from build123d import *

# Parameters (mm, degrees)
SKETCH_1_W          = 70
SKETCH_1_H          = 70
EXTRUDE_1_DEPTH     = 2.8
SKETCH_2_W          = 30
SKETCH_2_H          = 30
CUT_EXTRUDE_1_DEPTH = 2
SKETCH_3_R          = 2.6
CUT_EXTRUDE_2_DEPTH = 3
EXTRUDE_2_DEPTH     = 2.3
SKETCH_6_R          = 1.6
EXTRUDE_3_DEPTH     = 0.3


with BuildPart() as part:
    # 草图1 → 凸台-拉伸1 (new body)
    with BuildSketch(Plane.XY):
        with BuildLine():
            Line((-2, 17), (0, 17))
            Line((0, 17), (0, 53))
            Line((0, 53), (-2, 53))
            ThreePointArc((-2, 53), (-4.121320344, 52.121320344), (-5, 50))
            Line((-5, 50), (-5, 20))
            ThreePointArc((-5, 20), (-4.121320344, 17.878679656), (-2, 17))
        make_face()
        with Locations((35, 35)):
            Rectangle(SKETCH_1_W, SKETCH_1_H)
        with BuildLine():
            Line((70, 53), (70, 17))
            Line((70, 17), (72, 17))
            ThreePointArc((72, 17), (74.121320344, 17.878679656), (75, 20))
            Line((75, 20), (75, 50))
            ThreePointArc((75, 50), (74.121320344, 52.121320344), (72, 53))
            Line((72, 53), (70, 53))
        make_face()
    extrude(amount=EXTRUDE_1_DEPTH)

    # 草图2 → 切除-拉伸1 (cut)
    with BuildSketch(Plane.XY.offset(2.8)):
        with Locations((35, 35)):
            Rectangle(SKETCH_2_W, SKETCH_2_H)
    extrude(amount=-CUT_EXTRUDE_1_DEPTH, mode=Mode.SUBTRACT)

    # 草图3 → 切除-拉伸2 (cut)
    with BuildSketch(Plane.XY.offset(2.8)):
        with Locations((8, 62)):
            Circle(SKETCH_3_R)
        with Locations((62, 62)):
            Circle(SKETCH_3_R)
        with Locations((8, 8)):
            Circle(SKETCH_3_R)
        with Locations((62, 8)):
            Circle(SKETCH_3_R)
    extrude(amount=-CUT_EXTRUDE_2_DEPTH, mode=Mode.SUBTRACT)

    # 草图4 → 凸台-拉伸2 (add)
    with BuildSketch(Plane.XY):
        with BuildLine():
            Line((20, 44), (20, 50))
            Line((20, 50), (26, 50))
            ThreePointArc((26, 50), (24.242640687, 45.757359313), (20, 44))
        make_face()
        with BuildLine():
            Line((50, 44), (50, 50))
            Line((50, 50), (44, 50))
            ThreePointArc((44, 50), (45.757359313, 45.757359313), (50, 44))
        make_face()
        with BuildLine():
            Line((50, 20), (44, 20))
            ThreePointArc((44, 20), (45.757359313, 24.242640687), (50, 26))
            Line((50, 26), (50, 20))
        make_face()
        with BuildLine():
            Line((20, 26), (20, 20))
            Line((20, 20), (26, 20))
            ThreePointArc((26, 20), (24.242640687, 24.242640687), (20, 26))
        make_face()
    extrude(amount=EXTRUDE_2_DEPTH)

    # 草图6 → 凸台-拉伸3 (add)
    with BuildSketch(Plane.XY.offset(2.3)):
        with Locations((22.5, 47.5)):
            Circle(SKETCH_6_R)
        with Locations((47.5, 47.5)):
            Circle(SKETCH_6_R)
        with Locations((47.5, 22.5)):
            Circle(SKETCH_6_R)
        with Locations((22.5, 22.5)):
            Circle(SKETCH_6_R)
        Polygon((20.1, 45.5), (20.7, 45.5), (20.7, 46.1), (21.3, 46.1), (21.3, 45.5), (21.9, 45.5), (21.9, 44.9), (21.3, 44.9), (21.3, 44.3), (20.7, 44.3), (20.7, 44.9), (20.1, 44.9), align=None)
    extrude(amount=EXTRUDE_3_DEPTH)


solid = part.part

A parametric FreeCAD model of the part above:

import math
import FreeCAD as App
import Part
import Sketcher
Q = App.Units.Quantity

doc = App.newDocument("Part")
body = doc.addObject("PartDesign::Body", "Body")

sketch1 = doc.addObject("Sketcher::SketchObject", "Sketch")
body.addObject(sketch1)
sketch1.AttachmentSupport = (doc.XY_Plane, [""])
sketch1.MapMode = "FlatFace"
sketch1.addGeometry(Part.LineSegment(App.Vector(-2, 17, 0), App.Vector(0, 17, 0)), False)
sketch1.addGeometry(Part.LineSegment(App.Vector(0, 17, 0), App.Vector(0, 0, 0)), False)
sketch1.addGeometry(Part.LineSegment(App.Vector(0, 0, 0), App.Vector(70, 0, 0)), False)
sketch1.addGeometry(Part.LineSegment(App.Vector(70, 0, 0), App.Vector(70, 17, 0)), False)
sketch1.addGeometry(Part.LineSegment(App.Vector(70, 17, 0), App.Vector(72, 17, 0)), False)
sketch1.addGeometry(Part.ArcOfCircle(Part.Circle(App.Vector(72, 20, 0), App.Vector(0, 0, 1), 3), math.radians(-90), math.radians(0)), False)
sketch1.addGeometry(Part.LineSegment(App.Vector(75, 20, 0), App.Vector(75, 50, 0)), False)
sketch1.addGeometry(Part.ArcOfCircle(Part.Circle(App.Vector(72, 50, 0), App.Vector(0, 0, 1), 3), math.radians(0), math.radians(90)), False)
sketch1.addGeometry(Part.LineSegment(App.Vector(72, 53, 0), App.Vector(70, 53, 0)), False)
sketch1.addGeometry(Part.LineSegment(App.Vector(70, 53, 0), App.Vector(70, 70, 0)), False)
sketch1.addGeometry(Part.LineSegment(App.Vector(70, 70, 0), App.Vector(0, 70, 0)), False)
sketch1.addGeometry(Part.LineSegment(App.Vector(0, 70, 0), App.Vector(0, 53, 0)), False)
sketch1.addGeometry(Part.LineSegment(App.Vector(0, 53, 0), App.Vector(-2, 53, 0)), False)
sketch1.addGeometry(Part.ArcOfCircle(Part.Circle(App.Vector(-2, 50, 0), App.Vector(0, 0, 1), 3), math.radians(90), math.radians(180)), False)
sketch1.addGeometry(Part.LineSegment(App.Vector(-5, 50, 0), App.Vector(-5, 20, 0)), False)
sketch1.addGeometry(Part.ArcOfCircle(Part.Circle(App.Vector(-2, 20, 0), App.Vector(0, 0, 1), 3), math.radians(180), math.radians(270)), False)
sketch1.addConstraint(Sketcher.Constraint("Coincident", 0, 2, 1, 1))
sketch1.addConstraint(Sketcher.Constraint("Coincident", 1, 2, 2, 1))
sketch1.addConstraint(Sketcher.Constraint("Coincident", 2, 2, 3, 1))
sketch1.addConstraint(Sketcher.Constraint("Coincident", 3, 2, 4, 1))
sketch1.addConstraint(Sketcher.Constraint("Tangent", 4, 2, 5, 1))
sketch1.addConstraint(Sketcher.Constraint("Tangent", 5, 2, 6, 1))
sketch1.addConstraint(Sketcher.Constraint("Tangent", 6, 2, 7, 1))
sketch1.addConstraint(Sketcher.Constraint("Tangent", 7, 2, 8, 1))
sketch1.addConstraint(Sketcher.Constraint("Coincident", 8, 2, 9, 1))
sketch1.addConstraint(Sketcher.Constraint("Coincident", 9, 2, 10, 1))
sketch1.addConstraint(Sketcher.Constraint("Coincident", 10, 2, 11, 1))
sketch1.addConstraint(Sketcher.Constraint("Coincident", 11, 2, 12, 1))
sketch1.addConstraint(Sketcher.Constraint("Tangent", 12, 2, 13, 1))
sketch1.addConstraint(Sketcher.Constraint("Tangent", 13, 2, 14, 1))
sketch1.addConstraint(Sketcher.Constraint("Tangent", 14, 2, 15, 1))
sketch1.addConstraint(Sketcher.Constraint("Tangent", 15, 2, 0, 1))
sketch1.addConstraint(Sketcher.Constraint("Horizontal", 0))
sketch1.addConstraint(Sketcher.Constraint("Vertical", 1))
sketch1.addConstraint(Sketcher.Constraint("Horizontal", 2))
sketch1.addConstraint(Sketcher.Constraint("Vertical", 3))
sketch1.addConstraint(Sketcher.Constraint("Horizontal", 4))
sketch1.addConstraint(Sketcher.Constraint("Vertical", 6))
sketch1.addConstraint(Sketcher.Constraint("Horizontal", 8))
sketch1.addConstraint(Sketcher.Constraint("Vertical", 9))
sketch1.addConstraint(Sketcher.Constraint("Horizontal", 10))
sketch1.addConstraint(Sketcher.Constraint("Vertical", 11))
sketch1.addConstraint(Sketcher.Constraint("Horizontal", 12))
sketch1.addConstraint(Sketcher.Constraint("Vertical", 14))
sketch1.addConstraint(Sketcher.Constraint("Coincident", 1, 2, -1, 1))
sketch1.addConstraint(Sketcher.Constraint("Equal", 5, 7))
sketch1.addConstraint(Sketcher.Constraint("Equal", 7, 13))
sketch1.addConstraint(Sketcher.Constraint("Equal", 13, 15))
sketch1.addConstraint(Sketcher.Constraint("PointOnObject", 10, 2, -2))
sketch1.addConstraint(Sketcher.Constraint("Horizontal", 7, 3, 13, 3))
sketch1.addConstraint(Sketcher.Constraint("Horizontal", 5, 3, 15, 3))
sketch1.addConstraint(Sketcher.Constraint("Vertical", 3, 2, 8, 2))
sketch1.addConstraint(Sketcher.Constraint("Equal", 0, 4))
sketch1.addConstraint(Sketcher.Constraint("Equal", 3, 9))
sketch1.addConstraint(Sketcher.Constraint("Radius", 5, Q("3 mm")))
sketch1.addConstraint(Sketcher.Constraint("DistanceX", 0, 1, 0, 2, Q("2 mm")))
sketch1.addConstraint(Sketcher.Constraint("DistanceX", 2, 1, 2, 2, Q("70 mm")))
sketch1.addConstraint(Sketcher.Constraint("DistanceY", 1, 2, 1, 1, Q("17 mm")))
sketch1.addConstraint(Sketcher.Constraint("DistanceY", 6, 1, 6, 2, Q("30 mm")))
pad1 = doc.addObject("PartDesign::Pad", "Pad")
body.addObject(pad1)
pad1.Profile = sketch1
pad1.Length = 2.8

sketch2 = doc.addObject("Sketcher::SketchObject", "Sketch001")
body.addObject(sketch2)
sketch2.AttachmentSupport = (doc.XY_Plane, [""])
sketch2.MapMode = "FlatFace"
sketch2.AttachmentOffset = App.Placement(App.Vector(0, 0, 2.8), App.Rotation())
sketch2.addGeometry(Part.LineSegment(App.Vector(20, 50, 0), App.Vector(20, 20, 0)), False)
sketch2.addGeometry(Part.LineSegment(App.Vector(20, 20, 0), App.Vector(50, 20, 0)), False)
sketch2.addGeometry(Part.LineSegment(App.Vector(50, 20, 0), App.Vector(50, 50, 0)), False)
sketch2.addGeometry(Part.LineSegment(App.Vector(50, 50, 0), App.Vector(20, 50, 0)), False)
sketch2.addConstraint(Sketcher.Constraint("Coincident", 0, 2, 1, 1))
sketch2.addConstraint(Sketcher.Constraint("Coincident", 1, 2, 2, 1))
sketch2.addConstraint(Sketcher.Constraint("Coincident", 2, 2, 3, 1))
sketch2.addConstraint(Sketcher.Constraint("Coincident", 3, 2, 0, 1))
sketch2.addConstraint(Sketcher.Constraint("Vertical", 0))
sketch2.addConstraint(Sketcher.Constraint("Horizontal", 1))
sketch2.addConstraint(Sketcher.Constraint("Vertical", 2))
sketch2.addConstraint(Sketcher.Constraint("Horizontal", 3))
sketch2.addConstraint(Sketcher.Constraint("Equal", 3, 0))
sketch2.addConstraint(Sketcher.Constraint("DistanceX", 1, 1, 1, 2, Q("30 mm")))
sketch2.addConstraint(Sketcher.Constraint("DistanceX", -1, 1, 0, 2, Q("20 mm")))
sketch2.addConstraint(Sketcher.Constraint("DistanceY", -1, 1, 0, 2, Q("20 mm")))
pocket1 = doc.addObject("PartDesign::Pocket", "Pocket")
body.addObject(pocket1)
pocket1.Profile = sketch2
pocket1.Length = 2

sketch3 = doc.addObject("Sketcher::SketchObject", "Sketch002")
body.addObject(sketch3)
sketch3.AttachmentSupport = (doc.XY_Plane, [""])
sketch3.MapMode = "FlatFace"
sketch3.AttachmentOffset = App.Placement(App.Vector(0, 0, 2.8), App.Rotation())
sketch3.addGeometry(Part.Circle(App.Vector(8, 62, 0), App.Vector(0, 0, 1), 2.6), False)
sketch3.addGeometry(Part.Circle(App.Vector(62, 62, 0), App.Vector(0, 0, 1), 2.6), False)
sketch3.addGeometry(Part.Circle(App.Vector(8, 8, 0), App.Vector(0, 0, 1), 2.6), False)
sketch3.addGeometry(Part.Circle(App.Vector(62, 8, 0), App.Vector(0, 0, 1), 2.6), False)
sketch3.addConstraint(Sketcher.Constraint("Equal", 0, 1))
sketch3.addConstraint(Sketcher.Constraint("Equal", 1, 2))
sketch3.addConstraint(Sketcher.Constraint("Equal", 2, 3))
sketch3.addConstraint(Sketcher.Constraint("Horizontal", 0, 3, 1, 3))
sketch3.addConstraint(Sketcher.Constraint("Horizontal", 2, 3, 3, 3))
sketch3.addConstraint(Sketcher.Constraint("Vertical", 0, 3, 2, 3))
sketch3.addConstraint(Sketcher.Constraint("Vertical", 1, 3, 3, 3))
sketch3.addConstraint(Sketcher.Constraint("Diameter", 0, Q("5.2 mm")))
sketch3.addConstraint(Sketcher.Constraint("DistanceX", -1, 1, 0, 3, Q("8 mm")))
sketch3.addConstraint(Sketcher.Constraint("DistanceY", -1, 1, 0, 3, Q("62 mm")))
sketch3.addConstraint(Sketcher.Constraint("DistanceX", -1, 1, 1, 3, Q("62 mm")))
sketch3.addConstraint(Sketcher.Constraint("DistanceY", -1, 1, 2, 3, Q("8 mm")))
pocket2 = doc.addObject("PartDesign::Pocket", "Pocket001")
body.addObject(pocket2)
pocket2.Profile = sketch3
pocket2.Length = 3

sketch4 = doc.addObject("Sketcher::SketchObject", "Sketch003")
body.addObject(sketch4)
sketch4.AttachmentSupport = (doc.XY_Plane, [""])
sketch4.MapMode = "FlatFace"
sketch4.addGeometry(Part.LineSegment(App.Vector(20, 50, 0), App.Vector(20, 44, 0)), False)
sketch4.addGeometry(Part.ArcOfCircle(Part.Circle(App.Vector(20, 50, 0), App.Vector(0, 0, 1), 6), math.radians(-90), math.radians(0)), False)
sketch4.addGeometry(Part.LineSegment(App.Vector(26, 50, 0), App.Vector(20, 50, 0)), False)
sketch4.addGeometry(Part.LineSegment(App.Vector(50, 44, 0), App.Vector(50, 50, 0)), False)
sketch4.addGeometry(Part.LineSegment(App.Vector(50, 50, 0), App.Vector(44, 50, 0)), False)
sketch4.addGeometry(Part.ArcOfCircle(Part.Circle(App.Vector(50, 50, 0), App.Vector(0, 0, 1), 6), math.radians(180), math.radians(270)), False)
sketch4.addGeometry(Part.LineSegment(App.Vector(44, 20, 0), App.Vector(50, 20, 0)), False)
sketch4.addGeometry(Part.LineSegment(App.Vector(50, 20, 0), App.Vector(50, 26, 0)), False)
sketch4.addGeometry(Part.ArcOfCircle(Part.Circle(App.Vector(50, 20, 0), App.Vector(0, 0, 1), 6), math.radians(90), math.radians(180)), False)
sketch4.addGeometry(Part.LineSegment(App.Vector(20, 26, 0), App.Vector(20, 20, 0)), False)
sketch4.addGeometry(Part.LineSegment(App.Vector(20, 20, 0), App.Vector(26, 20, 0)), False)
sketch4.addGeometry(Part.ArcOfCircle(Part.Circle(App.Vector(20, 20, 0), App.Vector(0, 0, 1), 6), math.radians(0), math.radians(90)), False)
sketch4.addConstraint(Sketcher.Constraint("Coincident", 0, 2, 1, 1))
sketch4.addConstraint(Sketcher.Constraint("Coincident", 1, 2, 2, 1))
sketch4.addConstraint(Sketcher.Constraint("Coincident", 2, 2, 0, 1))
sketch4.addConstraint(Sketcher.Constraint("Coincident", 3, 2, 4, 1))
sketch4.addConstraint(Sketcher.Constraint("Coincident", 4, 2, 5, 1))
sketch4.addConstraint(Sketcher.Constraint("Coincident", 5, 2, 3, 1))
sketch4.addConstraint(Sketcher.Constraint("Coincident", 6, 2, 7, 1))
sketch4.addConstraint(Sketcher.Constraint("Coincident", 7, 2, 8, 1))
sketch4.addConstraint(Sketcher.Constraint("Coincident", 8, 2, 6, 1))
sketch4.addConstraint(Sketcher.Constraint("Coincident", 9, 2, 10, 1))
sketch4.addConstraint(Sketcher.Constraint("Coincident", 10, 2, 11, 1))
sketch4.addConstraint(Sketcher.Constraint("Coincident", 11, 2, 9, 1))
sketch4.addConstraint(Sketcher.Constraint("Vertical", 0))
sketch4.addConstraint(Sketcher.Constraint("Horizontal", 2))
sketch4.addConstraint(Sketcher.Constraint("Vertical", 3))
sketch4.addConstraint(Sketcher.Constraint("Horizontal", 4))
sketch4.addConstraint(Sketcher.Constraint("Horizontal", 6))
sketch4.addConstraint(Sketcher.Constraint("Vertical", 7))
sketch4.addConstraint(Sketcher.Constraint("Vertical", 9))
sketch4.addConstraint(Sketcher.Constraint("Horizontal", 10))
sketch4.addConstraint(Sketcher.Constraint("Coincident", 2, 2, 1, 3))
sketch4.addConstraint(Sketcher.Constraint("Coincident", 3, 2, 5, 3))
sketch4.addConstraint(Sketcher.Constraint("Coincident", 6, 2, 8, 3))
sketch4.addConstraint(Sketcher.Constraint("Coincident", 9, 2, 11, 3))
sketch4.addConstraint(Sketcher.Constraint("Equal", 1, 5))
sketch4.addConstraint(Sketcher.Constraint("Equal", 5, 8))
sketch4.addConstraint(Sketcher.Constraint("Equal", 8, 11))
sketch4.addConstraint(Sketcher.Constraint("Horizontal", 1, 3, 5, 3))
sketch4.addConstraint(Sketcher.Constraint("Horizontal", 8, 3, 11, 3))
sketch4.addConstraint(Sketcher.Constraint("Vertical", 5, 3, 8, 3))
sketch4.addConstraint(Sketcher.Constraint("Vertical", 1, 3, 11, 3))
sketch4.addConstraint(Sketcher.Constraint("Radius", 1, Q("6 mm")))
sketch4.addConstraint(Sketcher.Constraint("DistanceX", -1, 1, 1, 3, Q("20 mm")))
sketch4.addConstraint(Sketcher.Constraint("DistanceY", -1, 1, 1, 3, Q("50 mm")))
sketch4.addConstraint(Sketcher.Constraint("DistanceX", -1, 1, 5, 3, Q("50 mm")))
sketch4.addConstraint(Sketcher.Constraint("DistanceY", -1, 1, 8, 3, Q("20 mm")))
pad2 = doc.addObject("PartDesign::Pad", "Pad001")
body.addObject(pad2)
pad2.Profile = sketch4
pad2.Length = 2.3

sketch5 = doc.addObject("Sketcher::SketchObject", "Sketch004")
body.addObject(sketch5)
sketch5.AttachmentSupport = (doc.XY_Plane, [""])
sketch5.MapMode = "FlatFace"
sketch5.AttachmentOffset = App.Placement(App.Vector(0, 0, 2.3), App.Rotation())
sketch5.addGeometry(Part.Circle(App.Vector(22.5, 47.5, 0), App.Vector(0, 0, 1), 1.6), False)
sketch5.addGeometry(Part.Circle(App.Vector(47.5, 47.5, 0), App.Vector(0, 0, 1), 1.6), False)
sketch5.addGeometry(Part.Circle(App.Vector(47.5, 22.5, 0), App.Vector(0, 0, 1), 1.6), False)
sketch5.addGeometry(Part.Circle(App.Vector(22.5, 22.5, 0), App.Vector(0, 0, 1), 1.6), False)
sketch5.addGeometry(Part.LineSegment(App.Vector(20.7, 45.5, 0), App.Vector(20.1, 45.5, 0)), False)
sketch5.addGeometry(Part.LineSegment(App.Vector(20.1, 45.5, 0), App.Vector(20.1, 44.9, 0)), False)
sketch5.addGeometry(Part.LineSegment(App.Vector(20.1, 44.9, 0), App.Vector(20.7, 44.9, 0)), False)
sketch5.addGeometry(Part.LineSegment(App.Vector(20.7, 44.9, 0), App.Vector(20.7, 44.3, 0)), False)
sketch5.addGeometry(Part.LineSegment(App.Vector(20.7, 44.3, 0), App.Vector(21.3, 44.3, 0)), False)
sketch5.addGeometry(Part.LineSegment(App.Vector(21.3, 44.3, 0), App.Vector(21.3, 44.9, 0)), False)
sketch5.addGeometry(Part.LineSegment(App.Vector(21.3, 44.9, 0), App.Vector(21.9, 44.9, 0)), False)
sketch5.addGeometry(Part.LineSegment(App.Vector(21.9, 44.9, 0), App.Vector(21.9, 45.5, 0)), False)
sketch5.addGeometry(Part.LineSegment(App.Vector(21.9, 45.5, 0), App.Vector(21.3, 45.5, 0)), False)
sketch5.addGeometry(Part.LineSegment(App.Vector(21.3, 45.5, 0), App.Vector(21.3, 46.1, 0)), False)
sketch5.addGeometry(Part.LineSegment(App.Vector(21.3, 46.1, 0), App.Vector(20.7, 46.1, 0)), False)
sketch5.addGeometry(Part.LineSegment(App.Vector(20.7, 46.1, 0), App.Vector(20.7, 45.5, 0)), False)
sketch5.addConstraint(Sketcher.Constraint("Coincident", 4, 2, 5, 1))
sketch5.addConstraint(Sketcher.Constraint("Coincident", 5, 2, 6, 1))
sketch5.addConstraint(Sketcher.Constraint("Coincident", 6, 2, 7, 1))
sketch5.addConstraint(Sketcher.Constraint("Coincident", 7, 2, 8, 1))
sketch5.addConstraint(Sketcher.Constraint("Coincident", 8, 2, 9, 1))
sketch5.addConstraint(Sketcher.Constraint("Coincident", 9, 2, 10, 1))
sketch5.addConstraint(Sketcher.Constraint("Coincident", 10, 2, 11, 1))
sketch5.addConstraint(Sketcher.Constraint("Coincident", 11, 2, 12, 1))
sketch5.addConstraint(Sketcher.Constraint("Coincident", 12, 2, 13, 1))
sketch5.addConstraint(Sketcher.Constraint("Coincident", 13, 2, 14, 1))
sketch5.addConstraint(Sketcher.Constraint("Coincident", 14, 2, 15, 1))
sketch5.addConstraint(Sketcher.Constraint("Coincident", 15, 2, 4, 1))
sketch5.addConstraint(Sketcher.Constraint("Horizontal", 4))
sketch5.addConstraint(Sketcher.Constraint("Vertical", 5))
sketch5.addConstraint(Sketcher.Constraint("Horizontal", 6))
sketch5.addConstraint(Sketcher.Constraint("Vertical", 7))
sketch5.addConstraint(Sketcher.Constraint("Horizontal", 8))
sketch5.addConstraint(Sketcher.Constraint("Vertical", 9))
sketch5.addConstraint(Sketcher.Constraint("Horizontal", 10))
sketch5.addConstraint(Sketcher.Constraint("Vertical", 11))
sketch5.addConstraint(Sketcher.Constraint("Horizontal", 12))
sketch5.addConstraint(Sketcher.Constraint("Vertical", 13))
sketch5.addConstraint(Sketcher.Constraint("Horizontal", 14))
sketch5.addConstraint(Sketcher.Constraint("Vertical", 15))
sketch5.addConstraint(Sketcher.Constraint("Equal", 0, 1))
sketch5.addConstraint(Sketcher.Constraint("Equal", 1, 2))
sketch5.addConstraint(Sketcher.Constraint("Equal", 2, 3))
sketch5.addConstraint(Sketcher.Constraint("Horizontal", 0, 3, 1, 3))
sketch5.addConstraint(Sketcher.Constraint("Horizontal", 2, 3, 3, 3))
sketch5.addConstraint(Sketcher.Constraint("Horizontal", 6, 2, 9, 2))
sketch5.addConstraint(Sketcher.Constraint("Horizontal", 4, 2, 11, 2))
sketch5.addConstraint(Sketcher.Constraint("Vertical", 1, 3, 2, 3))
sketch5.addConstraint(Sketcher.Constraint("Vertical", 0, 3, 3, 3))
sketch5.addConstraint(Sketcher.Constraint("Vertical", 9, 2, 12, 2))
sketch5.addConstraint(Sketcher.Constraint("Vertical", 7, 2, 14, 2))
sketch5.addConstraint(Sketcher.Constraint("Equal", 6, 8))
sketch5.addConstraint(Sketcher.Constraint("Equal", 8, 10))
sketch5.addConstraint(Sketcher.Constraint("Equal", 14, 5))
sketch5.addConstraint(Sketcher.Constraint("Equal", 5, 7))
sketch5.addConstraint(Sketcher.Constraint("Equal", 11, 13))
sketch5.addConstraint(Sketcher.Constraint("Diameter", 0, Q("3.2 mm")))
sketch5.addConstraint(Sketcher.Constraint("DistanceX", 4, 2, 4, 1, Q("0.6 mm")))
sketch5.addConstraint(Sketcher.Constraint("DistanceX", 0, 3, 1, 3, Q("25 mm")))
sketch5.addConstraint(Sketcher.Constraint("DistanceY", 2, 3, 1, 3, Q("25 mm")))
sketch5.addConstraint(Sketcher.Constraint("DistanceY", 4, 2, 0, 3, Q("2 mm")))
sketch5.addConstraint(Sketcher.Constraint("DistanceX", -1, 1, 0, 3, Q("22.5 mm")))
sketch5.addConstraint(Sketcher.Constraint("DistanceY", -1, 1, 0, 3, Q("47.5 mm")))
sketch5.addConstraint(Sketcher.Constraint("DistanceX", -1, 1, 4, 2, Q("20.1 mm")))
pad3 = doc.addObject("PartDesign::Pad", "Pad002")
body.addObject(pad3)
pad3.Profile = sketch5
pad3.Length = 0.3

doc.recompute()
